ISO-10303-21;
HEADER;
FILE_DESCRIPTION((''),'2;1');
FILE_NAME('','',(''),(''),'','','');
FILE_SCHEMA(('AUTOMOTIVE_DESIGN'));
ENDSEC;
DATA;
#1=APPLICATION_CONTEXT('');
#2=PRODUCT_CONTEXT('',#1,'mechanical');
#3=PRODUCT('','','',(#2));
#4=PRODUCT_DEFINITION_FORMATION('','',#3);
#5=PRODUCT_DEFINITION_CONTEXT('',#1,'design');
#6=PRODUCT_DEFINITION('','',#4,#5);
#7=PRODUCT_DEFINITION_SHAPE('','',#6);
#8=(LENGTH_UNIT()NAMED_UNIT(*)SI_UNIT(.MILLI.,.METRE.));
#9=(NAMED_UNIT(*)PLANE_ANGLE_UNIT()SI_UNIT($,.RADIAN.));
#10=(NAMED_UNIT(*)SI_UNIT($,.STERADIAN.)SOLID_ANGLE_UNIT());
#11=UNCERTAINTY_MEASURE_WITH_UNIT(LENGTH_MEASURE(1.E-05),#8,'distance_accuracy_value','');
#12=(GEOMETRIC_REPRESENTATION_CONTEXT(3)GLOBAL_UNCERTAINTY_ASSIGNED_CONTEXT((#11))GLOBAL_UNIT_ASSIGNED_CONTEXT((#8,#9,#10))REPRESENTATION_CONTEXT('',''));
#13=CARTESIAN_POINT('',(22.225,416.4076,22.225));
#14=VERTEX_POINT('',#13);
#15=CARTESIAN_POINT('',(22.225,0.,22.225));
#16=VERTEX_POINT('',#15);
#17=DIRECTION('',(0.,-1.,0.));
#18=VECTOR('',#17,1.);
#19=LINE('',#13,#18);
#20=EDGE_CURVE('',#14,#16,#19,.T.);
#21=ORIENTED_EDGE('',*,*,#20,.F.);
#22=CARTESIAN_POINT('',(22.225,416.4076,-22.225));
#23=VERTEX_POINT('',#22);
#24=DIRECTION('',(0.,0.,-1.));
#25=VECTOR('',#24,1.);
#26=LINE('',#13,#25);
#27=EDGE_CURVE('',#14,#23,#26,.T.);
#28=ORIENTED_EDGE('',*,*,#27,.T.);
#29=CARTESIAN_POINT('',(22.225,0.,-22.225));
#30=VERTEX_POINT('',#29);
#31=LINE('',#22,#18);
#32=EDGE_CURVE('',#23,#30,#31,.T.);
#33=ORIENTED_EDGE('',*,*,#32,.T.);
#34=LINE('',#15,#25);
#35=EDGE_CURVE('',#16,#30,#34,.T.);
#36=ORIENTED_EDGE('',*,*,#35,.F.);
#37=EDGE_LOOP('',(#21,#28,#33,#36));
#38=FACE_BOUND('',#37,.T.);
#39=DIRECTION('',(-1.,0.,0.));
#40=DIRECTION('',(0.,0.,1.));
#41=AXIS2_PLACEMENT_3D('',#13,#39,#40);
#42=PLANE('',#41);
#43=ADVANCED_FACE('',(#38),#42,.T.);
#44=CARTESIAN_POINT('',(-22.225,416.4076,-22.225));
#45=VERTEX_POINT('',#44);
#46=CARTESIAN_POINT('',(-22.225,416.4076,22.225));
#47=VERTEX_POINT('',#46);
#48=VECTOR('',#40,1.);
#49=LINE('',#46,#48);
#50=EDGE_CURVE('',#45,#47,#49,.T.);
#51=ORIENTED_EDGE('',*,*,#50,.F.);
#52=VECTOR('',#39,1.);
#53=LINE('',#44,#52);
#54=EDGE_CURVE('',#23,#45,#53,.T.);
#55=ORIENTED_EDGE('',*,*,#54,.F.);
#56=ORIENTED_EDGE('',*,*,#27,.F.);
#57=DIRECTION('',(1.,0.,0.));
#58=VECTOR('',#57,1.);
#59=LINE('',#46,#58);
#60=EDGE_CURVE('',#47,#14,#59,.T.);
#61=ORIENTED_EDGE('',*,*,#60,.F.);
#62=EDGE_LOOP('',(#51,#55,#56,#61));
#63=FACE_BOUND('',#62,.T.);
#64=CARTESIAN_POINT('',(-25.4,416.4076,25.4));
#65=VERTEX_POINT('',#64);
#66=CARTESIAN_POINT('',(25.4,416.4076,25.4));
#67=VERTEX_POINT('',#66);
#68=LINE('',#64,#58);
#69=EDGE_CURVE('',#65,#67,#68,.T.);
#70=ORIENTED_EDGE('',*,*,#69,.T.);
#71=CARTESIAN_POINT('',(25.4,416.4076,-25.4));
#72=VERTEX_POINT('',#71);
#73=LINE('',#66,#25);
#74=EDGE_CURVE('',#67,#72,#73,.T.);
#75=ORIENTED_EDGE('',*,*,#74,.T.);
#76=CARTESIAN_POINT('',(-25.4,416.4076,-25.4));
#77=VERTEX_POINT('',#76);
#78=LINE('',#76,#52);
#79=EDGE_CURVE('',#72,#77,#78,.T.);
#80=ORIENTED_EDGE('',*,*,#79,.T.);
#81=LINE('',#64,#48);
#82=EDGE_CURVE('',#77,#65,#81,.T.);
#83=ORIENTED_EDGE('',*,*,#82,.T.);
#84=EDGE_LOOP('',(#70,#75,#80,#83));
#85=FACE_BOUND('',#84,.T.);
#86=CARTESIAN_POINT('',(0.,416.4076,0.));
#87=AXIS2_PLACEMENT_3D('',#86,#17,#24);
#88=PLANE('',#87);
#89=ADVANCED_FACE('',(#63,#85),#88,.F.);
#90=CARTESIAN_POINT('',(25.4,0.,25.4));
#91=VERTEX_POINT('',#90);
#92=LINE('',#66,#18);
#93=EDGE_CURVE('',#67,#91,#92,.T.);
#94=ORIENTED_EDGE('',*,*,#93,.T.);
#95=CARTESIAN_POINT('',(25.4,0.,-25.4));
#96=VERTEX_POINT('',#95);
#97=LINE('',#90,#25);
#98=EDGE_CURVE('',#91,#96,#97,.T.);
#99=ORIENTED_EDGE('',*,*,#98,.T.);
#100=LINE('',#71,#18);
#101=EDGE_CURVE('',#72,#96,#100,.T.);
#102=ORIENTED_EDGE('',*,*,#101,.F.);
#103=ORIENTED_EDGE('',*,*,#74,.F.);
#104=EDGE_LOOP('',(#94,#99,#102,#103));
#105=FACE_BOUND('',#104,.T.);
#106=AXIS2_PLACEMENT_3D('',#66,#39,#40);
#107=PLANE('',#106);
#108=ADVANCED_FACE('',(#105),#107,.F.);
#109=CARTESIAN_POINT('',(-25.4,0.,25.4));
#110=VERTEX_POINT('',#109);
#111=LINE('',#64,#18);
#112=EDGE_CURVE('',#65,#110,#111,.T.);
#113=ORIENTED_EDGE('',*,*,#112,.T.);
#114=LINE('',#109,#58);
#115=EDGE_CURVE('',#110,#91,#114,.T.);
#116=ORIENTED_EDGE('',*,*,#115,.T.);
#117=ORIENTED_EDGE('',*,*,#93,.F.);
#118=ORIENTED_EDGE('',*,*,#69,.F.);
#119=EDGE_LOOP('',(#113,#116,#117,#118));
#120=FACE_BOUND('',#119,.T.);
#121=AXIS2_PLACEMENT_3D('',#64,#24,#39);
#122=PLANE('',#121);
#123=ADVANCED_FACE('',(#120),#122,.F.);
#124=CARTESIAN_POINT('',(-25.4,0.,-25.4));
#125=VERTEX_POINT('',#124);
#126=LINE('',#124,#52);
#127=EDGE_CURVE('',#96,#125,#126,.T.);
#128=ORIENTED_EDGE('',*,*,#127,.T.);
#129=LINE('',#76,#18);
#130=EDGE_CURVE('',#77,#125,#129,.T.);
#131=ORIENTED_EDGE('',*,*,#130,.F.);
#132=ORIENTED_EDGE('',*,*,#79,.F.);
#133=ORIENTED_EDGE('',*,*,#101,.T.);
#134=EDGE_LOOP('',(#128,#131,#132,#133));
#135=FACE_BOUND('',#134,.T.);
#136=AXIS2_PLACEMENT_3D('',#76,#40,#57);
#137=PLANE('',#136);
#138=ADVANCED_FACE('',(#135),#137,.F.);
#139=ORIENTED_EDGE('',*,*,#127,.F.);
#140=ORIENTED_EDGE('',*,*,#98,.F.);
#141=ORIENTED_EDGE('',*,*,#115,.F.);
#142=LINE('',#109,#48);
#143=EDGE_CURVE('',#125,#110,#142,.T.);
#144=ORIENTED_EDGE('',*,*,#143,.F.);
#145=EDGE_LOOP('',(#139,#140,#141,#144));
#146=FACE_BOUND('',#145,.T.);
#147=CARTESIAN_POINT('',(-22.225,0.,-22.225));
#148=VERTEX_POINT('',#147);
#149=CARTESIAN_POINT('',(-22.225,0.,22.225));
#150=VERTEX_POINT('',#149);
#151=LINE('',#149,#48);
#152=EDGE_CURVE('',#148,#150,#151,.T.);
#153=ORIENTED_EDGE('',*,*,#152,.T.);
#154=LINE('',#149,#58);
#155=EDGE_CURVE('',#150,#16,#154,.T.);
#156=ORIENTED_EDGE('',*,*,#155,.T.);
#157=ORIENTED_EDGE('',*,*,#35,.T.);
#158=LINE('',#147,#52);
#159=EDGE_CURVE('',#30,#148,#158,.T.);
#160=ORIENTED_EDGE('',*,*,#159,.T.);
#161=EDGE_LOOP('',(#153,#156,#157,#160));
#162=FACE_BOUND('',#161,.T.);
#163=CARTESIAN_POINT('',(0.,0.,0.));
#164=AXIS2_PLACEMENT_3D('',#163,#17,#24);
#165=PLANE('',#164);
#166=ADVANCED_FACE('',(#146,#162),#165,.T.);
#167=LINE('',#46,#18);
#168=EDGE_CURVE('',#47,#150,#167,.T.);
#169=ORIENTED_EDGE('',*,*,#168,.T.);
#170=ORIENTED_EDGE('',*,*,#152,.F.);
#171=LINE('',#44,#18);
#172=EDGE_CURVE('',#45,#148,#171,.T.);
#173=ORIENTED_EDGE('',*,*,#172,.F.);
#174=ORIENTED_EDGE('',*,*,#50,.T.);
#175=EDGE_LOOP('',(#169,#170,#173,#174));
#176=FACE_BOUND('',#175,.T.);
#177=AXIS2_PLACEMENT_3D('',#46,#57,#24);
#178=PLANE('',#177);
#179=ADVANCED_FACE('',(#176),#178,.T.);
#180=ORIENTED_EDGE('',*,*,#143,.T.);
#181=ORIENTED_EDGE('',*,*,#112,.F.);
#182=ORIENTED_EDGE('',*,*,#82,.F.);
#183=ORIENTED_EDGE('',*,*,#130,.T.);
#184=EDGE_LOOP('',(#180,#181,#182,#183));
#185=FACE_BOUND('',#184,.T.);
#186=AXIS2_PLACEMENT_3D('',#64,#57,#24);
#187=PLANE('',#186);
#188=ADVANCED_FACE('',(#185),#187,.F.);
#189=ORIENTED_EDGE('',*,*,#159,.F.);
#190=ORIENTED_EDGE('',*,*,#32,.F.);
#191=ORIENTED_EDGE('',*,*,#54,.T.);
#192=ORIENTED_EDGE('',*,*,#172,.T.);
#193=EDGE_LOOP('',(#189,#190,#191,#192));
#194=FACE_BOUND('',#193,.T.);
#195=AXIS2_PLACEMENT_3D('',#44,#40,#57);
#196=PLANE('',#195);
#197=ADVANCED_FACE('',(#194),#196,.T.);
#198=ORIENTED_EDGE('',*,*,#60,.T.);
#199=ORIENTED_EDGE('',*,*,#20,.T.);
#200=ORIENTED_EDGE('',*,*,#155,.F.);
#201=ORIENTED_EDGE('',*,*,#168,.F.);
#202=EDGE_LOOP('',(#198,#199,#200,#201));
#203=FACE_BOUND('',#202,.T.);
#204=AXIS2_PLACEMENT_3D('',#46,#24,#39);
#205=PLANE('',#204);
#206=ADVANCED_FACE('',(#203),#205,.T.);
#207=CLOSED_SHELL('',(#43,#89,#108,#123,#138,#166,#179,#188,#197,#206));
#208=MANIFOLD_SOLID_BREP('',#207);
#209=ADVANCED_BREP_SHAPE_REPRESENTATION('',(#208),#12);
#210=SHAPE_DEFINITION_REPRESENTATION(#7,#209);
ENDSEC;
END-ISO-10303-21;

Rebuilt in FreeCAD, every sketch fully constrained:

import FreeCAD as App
import Part
import Sketcher
from FreeCAD import Vector
Q = App.Units.Quantity

doc = App.newDocument("Part")
body = doc.addObject("PartDesign::Body", "Body")

sketch1 = body.newObject("Sketcher::SketchObject", "Sketch")
sketch1.AttachmentSupport = (doc.getObject("XZ_Plane"), [""])
sketch1.MapMode = "FlatFace"
sketch1.addGeometry([
    Part.LineSegment(Vector(-25, -25, 0), Vector(-25, 25, 0)),
    Part.LineSegment(Vector(-25, 25, 0), Vector(25, 25, 0)),
    Part.LineSegment(Vector(25, 25, 0), Vector(25, -25, 0)),
    Part.LineSegment(Vector(25, -25, 0), Vector(-25, -25, 0)),
    Part.LineSegment(Vector(22, 22, 0), Vector(-22, 22, 0)),
    Part.LineSegment(Vector(-22, 22, 0), Vector(-22, -22, 0)),
    Part.LineSegment(Vector(-22, -22, 0), Vector(22, -22, 0)),
    Part.LineSegment(Vector(22, -22, 0), Vector(22, 22, 0)),
], False)
sketch1.addConstraint([
    Sketcher.Constraint("Coincident", 0, 2, 1, 1),
    Sketcher.Constraint("Coincident", 1, 2, 2, 1),
    Sketcher.Constraint("Coincident", 2, 2, 3, 1),
    Sketcher.Constraint("Coincident", 3, 2, 0, 1),
    Sketcher.Constraint("Coincident", 4, 2, 5, 1),
    Sketcher.Constraint("Coincident", 5, 2, 6, 1),
    Sketcher.Constraint("Coincident", 6, 2, 7, 1),
    Sketcher.Constraint("Coincident", 7, 2, 4, 1),
    Sketcher.Constraint("Vertical", 0),
    Sketcher.Constraint("Horizontal", 1),
    Sketcher.Constraint("Vertical", 2),
    Sketcher.Constraint("Horizontal", 3),
    Sketcher.Constraint("Horizontal", 4),
    Sketcher.Constraint("Vertical", 5),
    Sketcher.Constraint("Horizontal", 6),
    Sketcher.Constraint("Vertical", 7),
    Sketcher.Constraint("Symmetric", 0, 2, 2, 2, -1, 1),
    Sketcher.Constraint("Symmetric", 4, 2, 6, 2, -1, 1),
    Sketcher.Constraint("Equal", 3, 0),
    Sketcher.Constraint("Equal", 6, 5),
    Sketcher.Constraint("DistanceX", 1, 1, 1, 2, Q("2 in")),
    Sketcher.Constraint("DistanceX", 4, 2, 4, 1, Q("1.75 in")),
])
pad1 = body.newObject("PartDesign::Pad", "Pad")
pad1.Profile = sketch1
pad1.Length = Q("16.394 in")
pad1.Reversed = True

doc.recompute()
